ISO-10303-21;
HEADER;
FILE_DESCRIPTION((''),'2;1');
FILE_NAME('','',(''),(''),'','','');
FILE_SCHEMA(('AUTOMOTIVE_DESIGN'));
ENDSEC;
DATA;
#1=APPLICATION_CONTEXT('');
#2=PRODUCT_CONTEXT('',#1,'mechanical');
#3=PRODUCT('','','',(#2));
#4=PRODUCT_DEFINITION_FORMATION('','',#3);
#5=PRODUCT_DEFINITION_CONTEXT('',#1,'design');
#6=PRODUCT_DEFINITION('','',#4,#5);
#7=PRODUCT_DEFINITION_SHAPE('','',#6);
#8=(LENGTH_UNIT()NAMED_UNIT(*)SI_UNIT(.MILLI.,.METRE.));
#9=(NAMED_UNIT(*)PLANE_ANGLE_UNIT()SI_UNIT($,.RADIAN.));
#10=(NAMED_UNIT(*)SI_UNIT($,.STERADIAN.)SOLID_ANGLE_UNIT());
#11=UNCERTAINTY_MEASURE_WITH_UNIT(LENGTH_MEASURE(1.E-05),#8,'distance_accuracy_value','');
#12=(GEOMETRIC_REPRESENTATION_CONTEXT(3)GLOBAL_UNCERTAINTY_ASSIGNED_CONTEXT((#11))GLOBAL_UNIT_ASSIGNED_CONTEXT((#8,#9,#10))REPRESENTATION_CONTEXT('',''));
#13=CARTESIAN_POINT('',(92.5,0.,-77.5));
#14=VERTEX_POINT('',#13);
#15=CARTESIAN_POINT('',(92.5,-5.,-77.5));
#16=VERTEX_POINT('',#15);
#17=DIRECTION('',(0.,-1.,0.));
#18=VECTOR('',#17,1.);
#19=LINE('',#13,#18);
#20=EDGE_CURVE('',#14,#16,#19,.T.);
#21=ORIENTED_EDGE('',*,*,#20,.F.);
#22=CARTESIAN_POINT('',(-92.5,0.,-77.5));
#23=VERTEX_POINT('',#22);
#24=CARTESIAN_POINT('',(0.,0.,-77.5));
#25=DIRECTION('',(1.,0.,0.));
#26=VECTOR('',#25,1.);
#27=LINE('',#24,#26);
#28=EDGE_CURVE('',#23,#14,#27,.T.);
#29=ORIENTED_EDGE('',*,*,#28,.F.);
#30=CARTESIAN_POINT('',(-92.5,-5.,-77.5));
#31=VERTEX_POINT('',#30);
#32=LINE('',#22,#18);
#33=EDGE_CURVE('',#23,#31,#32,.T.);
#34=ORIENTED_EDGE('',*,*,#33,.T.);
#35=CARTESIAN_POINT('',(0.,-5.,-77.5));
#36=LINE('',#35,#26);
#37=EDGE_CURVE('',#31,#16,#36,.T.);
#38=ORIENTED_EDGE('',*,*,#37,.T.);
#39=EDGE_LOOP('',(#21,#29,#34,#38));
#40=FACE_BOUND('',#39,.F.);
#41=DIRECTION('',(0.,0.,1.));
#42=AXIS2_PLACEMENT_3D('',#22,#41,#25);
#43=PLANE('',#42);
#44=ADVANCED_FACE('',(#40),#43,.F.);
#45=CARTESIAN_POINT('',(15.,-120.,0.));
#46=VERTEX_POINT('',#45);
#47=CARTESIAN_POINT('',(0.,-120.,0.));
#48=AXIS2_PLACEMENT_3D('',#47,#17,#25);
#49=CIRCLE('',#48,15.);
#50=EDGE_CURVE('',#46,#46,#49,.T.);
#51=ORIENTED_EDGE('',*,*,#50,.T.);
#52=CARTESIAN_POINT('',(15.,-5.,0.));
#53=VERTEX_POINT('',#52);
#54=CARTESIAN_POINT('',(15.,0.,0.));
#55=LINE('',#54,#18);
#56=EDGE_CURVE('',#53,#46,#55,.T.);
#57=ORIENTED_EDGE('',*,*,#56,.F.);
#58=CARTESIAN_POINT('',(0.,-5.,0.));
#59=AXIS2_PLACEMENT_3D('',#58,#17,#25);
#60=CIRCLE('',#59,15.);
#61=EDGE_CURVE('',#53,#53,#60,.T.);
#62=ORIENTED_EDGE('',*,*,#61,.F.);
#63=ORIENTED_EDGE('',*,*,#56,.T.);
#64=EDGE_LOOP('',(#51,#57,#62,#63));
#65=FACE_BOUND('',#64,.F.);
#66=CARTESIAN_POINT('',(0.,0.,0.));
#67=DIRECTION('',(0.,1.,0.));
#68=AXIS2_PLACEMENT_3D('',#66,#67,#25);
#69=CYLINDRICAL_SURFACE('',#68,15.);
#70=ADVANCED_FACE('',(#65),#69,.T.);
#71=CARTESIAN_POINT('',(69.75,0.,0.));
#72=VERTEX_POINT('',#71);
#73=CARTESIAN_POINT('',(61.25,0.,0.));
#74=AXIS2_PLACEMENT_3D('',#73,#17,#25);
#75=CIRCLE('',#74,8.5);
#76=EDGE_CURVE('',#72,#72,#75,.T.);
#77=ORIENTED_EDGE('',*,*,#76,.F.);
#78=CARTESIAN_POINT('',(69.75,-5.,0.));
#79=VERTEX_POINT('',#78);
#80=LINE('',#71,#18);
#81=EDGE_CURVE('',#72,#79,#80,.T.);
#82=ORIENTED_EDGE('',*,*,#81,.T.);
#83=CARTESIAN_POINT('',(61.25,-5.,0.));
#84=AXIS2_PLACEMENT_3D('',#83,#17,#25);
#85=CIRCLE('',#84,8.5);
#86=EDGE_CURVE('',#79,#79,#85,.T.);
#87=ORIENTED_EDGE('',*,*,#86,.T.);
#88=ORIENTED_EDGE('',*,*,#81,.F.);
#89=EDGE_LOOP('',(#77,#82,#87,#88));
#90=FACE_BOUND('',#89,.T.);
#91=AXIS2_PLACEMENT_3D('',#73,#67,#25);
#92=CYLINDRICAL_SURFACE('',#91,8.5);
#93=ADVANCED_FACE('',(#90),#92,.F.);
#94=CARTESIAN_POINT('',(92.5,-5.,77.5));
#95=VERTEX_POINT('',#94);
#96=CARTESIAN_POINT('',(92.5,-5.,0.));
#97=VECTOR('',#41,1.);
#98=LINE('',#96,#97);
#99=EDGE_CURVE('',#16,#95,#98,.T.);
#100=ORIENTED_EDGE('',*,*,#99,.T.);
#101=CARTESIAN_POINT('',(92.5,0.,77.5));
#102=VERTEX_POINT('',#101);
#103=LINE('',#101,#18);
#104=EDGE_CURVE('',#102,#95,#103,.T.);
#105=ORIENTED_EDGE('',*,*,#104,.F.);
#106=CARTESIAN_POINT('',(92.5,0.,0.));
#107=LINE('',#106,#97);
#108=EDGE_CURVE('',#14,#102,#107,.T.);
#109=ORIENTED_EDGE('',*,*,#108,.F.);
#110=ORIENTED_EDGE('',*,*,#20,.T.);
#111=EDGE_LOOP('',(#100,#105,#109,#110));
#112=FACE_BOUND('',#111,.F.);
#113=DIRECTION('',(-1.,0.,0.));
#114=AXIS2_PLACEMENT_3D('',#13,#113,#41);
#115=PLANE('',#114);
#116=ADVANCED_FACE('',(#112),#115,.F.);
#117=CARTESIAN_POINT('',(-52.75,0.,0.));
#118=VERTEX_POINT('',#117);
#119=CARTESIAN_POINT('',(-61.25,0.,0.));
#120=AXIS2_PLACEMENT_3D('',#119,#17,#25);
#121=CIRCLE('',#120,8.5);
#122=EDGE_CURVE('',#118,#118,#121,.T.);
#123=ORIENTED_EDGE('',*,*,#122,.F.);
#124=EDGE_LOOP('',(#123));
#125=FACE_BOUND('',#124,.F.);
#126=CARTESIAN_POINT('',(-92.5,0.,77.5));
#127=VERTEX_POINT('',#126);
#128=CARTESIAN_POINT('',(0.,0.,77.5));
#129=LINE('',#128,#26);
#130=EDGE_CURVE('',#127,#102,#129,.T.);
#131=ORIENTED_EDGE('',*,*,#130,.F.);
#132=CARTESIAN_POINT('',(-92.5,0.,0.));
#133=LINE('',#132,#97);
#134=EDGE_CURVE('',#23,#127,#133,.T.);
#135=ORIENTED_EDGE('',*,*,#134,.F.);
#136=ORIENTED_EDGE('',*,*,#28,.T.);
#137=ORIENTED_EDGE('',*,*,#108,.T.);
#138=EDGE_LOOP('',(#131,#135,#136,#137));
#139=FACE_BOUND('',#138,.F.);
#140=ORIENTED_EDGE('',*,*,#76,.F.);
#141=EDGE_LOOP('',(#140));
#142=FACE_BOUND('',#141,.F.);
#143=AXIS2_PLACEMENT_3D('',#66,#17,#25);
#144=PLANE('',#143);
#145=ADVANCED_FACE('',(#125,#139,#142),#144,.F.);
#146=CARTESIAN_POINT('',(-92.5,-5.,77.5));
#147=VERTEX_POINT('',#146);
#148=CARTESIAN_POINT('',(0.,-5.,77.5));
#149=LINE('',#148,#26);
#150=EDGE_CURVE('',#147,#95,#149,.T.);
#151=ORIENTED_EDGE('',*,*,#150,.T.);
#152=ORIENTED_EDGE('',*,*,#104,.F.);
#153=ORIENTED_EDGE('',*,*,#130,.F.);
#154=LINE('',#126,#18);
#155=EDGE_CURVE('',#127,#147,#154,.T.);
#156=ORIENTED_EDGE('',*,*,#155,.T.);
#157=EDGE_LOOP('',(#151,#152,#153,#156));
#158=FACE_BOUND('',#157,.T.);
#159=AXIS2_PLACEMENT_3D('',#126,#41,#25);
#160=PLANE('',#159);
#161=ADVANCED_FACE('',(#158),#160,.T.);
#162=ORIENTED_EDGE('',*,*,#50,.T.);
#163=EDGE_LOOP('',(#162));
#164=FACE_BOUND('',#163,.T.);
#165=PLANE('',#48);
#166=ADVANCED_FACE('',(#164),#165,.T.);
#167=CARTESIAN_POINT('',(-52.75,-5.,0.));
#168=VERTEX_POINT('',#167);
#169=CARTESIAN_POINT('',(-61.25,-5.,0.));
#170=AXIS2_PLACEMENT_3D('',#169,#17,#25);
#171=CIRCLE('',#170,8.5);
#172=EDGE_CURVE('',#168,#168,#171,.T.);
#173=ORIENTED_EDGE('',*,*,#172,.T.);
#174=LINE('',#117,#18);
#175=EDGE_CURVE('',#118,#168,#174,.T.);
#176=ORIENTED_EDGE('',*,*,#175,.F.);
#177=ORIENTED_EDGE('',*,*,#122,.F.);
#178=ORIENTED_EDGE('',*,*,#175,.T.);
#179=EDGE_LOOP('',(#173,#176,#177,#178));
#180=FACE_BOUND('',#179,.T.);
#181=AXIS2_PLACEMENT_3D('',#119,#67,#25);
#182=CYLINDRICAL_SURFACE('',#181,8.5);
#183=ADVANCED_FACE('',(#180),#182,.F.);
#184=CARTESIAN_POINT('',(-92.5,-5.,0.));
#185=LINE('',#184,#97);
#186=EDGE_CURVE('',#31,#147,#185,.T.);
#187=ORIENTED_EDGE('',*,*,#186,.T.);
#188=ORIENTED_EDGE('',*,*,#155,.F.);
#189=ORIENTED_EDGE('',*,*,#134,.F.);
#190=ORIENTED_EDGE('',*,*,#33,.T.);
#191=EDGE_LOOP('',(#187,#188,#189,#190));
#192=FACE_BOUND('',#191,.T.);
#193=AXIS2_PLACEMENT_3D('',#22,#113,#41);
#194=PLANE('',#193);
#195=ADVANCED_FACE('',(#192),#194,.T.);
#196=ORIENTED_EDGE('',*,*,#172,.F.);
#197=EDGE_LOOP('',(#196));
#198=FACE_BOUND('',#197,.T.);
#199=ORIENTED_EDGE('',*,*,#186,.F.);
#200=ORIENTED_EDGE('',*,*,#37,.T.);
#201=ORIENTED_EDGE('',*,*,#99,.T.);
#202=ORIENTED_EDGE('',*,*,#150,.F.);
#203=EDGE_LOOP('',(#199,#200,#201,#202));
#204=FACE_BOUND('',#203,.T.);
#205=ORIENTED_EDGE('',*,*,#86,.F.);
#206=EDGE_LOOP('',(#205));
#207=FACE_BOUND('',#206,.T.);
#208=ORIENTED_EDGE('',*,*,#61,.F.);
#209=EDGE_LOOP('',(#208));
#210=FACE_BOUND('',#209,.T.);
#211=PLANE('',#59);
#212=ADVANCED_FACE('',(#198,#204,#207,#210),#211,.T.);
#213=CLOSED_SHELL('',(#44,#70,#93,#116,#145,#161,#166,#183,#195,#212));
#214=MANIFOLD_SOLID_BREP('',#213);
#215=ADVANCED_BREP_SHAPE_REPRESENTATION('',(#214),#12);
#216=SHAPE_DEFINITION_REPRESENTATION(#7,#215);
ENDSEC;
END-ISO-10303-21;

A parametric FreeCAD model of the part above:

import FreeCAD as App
import Part
import Sketcher
from FreeCAD import Vector
Q = App.Units.Quantity

doc = App.newDocument("Part")
body = doc.addObject("PartDesign::Body", "Body")

sketch1 = body.newObject("Sketcher::SketchObject", "Sketch")
sketch1.AttachmentSupport = (doc.getObject("XZ_Plane"), [""])
sketch1.MapMode = "FlatFace"
sketch1.addGeometry(Part.Circle(Vector(0, 0, 0), Vector(0, 0, 1), 15), False)
sketch1.addConstraint([
    Sketcher.Constraint("Coincident", 0, 3, -1, 1),
    Sketcher.Constraint("Diameter", 0, Q("30 mm")),
])
pad1 = body.newObject("PartDesign::Pad", "Pad")
pad1.Profile = sketch1
pad1.Length = 120

sketch2 = body.newObject("Sketcher::SketchObject", "Sketch001")
sketch2.AttachmentSupport = (doc.getObject("XZ_Plane"), [""])
sketch2.MapMode = "FlatFace"
sketch2.addGeometry([
    Part.LineSegment(Vector(-92.5, 77.5, 0), Vector(-92.5, -77.5, 0)),
    Part.LineSegment(Vector(-92.5, -77.5, 0), Vector(92.5, -77.5, 0)),
    Part.LineSegment(Vector(92.5, -77.5, 0), Vector(92.5, 77.5, 0)),
    Part.LineSegment(Vector(92.5, 77.5, 0), Vector(-92.5, 77.5, 0)),
    Part.Circle(Vector(-61.25, 0, 0), Vector(0, 0, 1), 8.5),
    Part.Circle(Vector(0, 0, 0), Vector(0, 0, 1), 15),
    Part.Circle(Vector(61.25, 0, 0), Vector(0, 0, 1), 8.5),
], False)
sketch2.addConstraint([
    Sketcher.Constraint("Coincident", 0, 2, 1, 1),
    Sketcher.Constraint("Coincident", 1, 2, 2, 1),
    Sketcher.Constraint("Coincident", 2, 2, 3, 1),
    Sketcher.Constraint("Coincident", 3, 2, 0, 1),
    Sketcher.Constraint("Vertical", 0),
    Sketcher.Constraint("Horizontal", 1),
    Sketcher.Constraint("Vertical", 2),
    Sketcher.Constraint("Horizontal", 3),
    Sketcher.Constraint("Coincident", 5, 3, -1, 1),
    Sketcher.Constraint("Equal", 4, 6),
    Sketcher.Constraint("Symmetric", 4, 3, 6, 3, -1, 1),
    Sketcher.Constraint("Symmetric", 0, 2, 2, 2, -1, 1),
    Sketcher.Constraint("PointOnObject", 4, 3, -1),
    Sketcher.Constraint("Diameter", 4, Q("17 mm")),
    Sketcher.Constraint("Diameter", 5, Q("30 mm")),
    Sketcher.Constraint("DistanceX", 1, 1, 1, 2, Q("185 mm")),
    Sketcher.Constraint("DistanceY", 0, 2, 0, 1, Q("155 mm")),
    Sketcher.Constraint("DistanceX", 4, 3, 6, 3, Q("122.5 mm")),
])
pad2 = body.newObject("PartDesign::Pad", "Pad001")
pad2.Profile = sketch2
pad2.Length = 5

doc.recompute()
